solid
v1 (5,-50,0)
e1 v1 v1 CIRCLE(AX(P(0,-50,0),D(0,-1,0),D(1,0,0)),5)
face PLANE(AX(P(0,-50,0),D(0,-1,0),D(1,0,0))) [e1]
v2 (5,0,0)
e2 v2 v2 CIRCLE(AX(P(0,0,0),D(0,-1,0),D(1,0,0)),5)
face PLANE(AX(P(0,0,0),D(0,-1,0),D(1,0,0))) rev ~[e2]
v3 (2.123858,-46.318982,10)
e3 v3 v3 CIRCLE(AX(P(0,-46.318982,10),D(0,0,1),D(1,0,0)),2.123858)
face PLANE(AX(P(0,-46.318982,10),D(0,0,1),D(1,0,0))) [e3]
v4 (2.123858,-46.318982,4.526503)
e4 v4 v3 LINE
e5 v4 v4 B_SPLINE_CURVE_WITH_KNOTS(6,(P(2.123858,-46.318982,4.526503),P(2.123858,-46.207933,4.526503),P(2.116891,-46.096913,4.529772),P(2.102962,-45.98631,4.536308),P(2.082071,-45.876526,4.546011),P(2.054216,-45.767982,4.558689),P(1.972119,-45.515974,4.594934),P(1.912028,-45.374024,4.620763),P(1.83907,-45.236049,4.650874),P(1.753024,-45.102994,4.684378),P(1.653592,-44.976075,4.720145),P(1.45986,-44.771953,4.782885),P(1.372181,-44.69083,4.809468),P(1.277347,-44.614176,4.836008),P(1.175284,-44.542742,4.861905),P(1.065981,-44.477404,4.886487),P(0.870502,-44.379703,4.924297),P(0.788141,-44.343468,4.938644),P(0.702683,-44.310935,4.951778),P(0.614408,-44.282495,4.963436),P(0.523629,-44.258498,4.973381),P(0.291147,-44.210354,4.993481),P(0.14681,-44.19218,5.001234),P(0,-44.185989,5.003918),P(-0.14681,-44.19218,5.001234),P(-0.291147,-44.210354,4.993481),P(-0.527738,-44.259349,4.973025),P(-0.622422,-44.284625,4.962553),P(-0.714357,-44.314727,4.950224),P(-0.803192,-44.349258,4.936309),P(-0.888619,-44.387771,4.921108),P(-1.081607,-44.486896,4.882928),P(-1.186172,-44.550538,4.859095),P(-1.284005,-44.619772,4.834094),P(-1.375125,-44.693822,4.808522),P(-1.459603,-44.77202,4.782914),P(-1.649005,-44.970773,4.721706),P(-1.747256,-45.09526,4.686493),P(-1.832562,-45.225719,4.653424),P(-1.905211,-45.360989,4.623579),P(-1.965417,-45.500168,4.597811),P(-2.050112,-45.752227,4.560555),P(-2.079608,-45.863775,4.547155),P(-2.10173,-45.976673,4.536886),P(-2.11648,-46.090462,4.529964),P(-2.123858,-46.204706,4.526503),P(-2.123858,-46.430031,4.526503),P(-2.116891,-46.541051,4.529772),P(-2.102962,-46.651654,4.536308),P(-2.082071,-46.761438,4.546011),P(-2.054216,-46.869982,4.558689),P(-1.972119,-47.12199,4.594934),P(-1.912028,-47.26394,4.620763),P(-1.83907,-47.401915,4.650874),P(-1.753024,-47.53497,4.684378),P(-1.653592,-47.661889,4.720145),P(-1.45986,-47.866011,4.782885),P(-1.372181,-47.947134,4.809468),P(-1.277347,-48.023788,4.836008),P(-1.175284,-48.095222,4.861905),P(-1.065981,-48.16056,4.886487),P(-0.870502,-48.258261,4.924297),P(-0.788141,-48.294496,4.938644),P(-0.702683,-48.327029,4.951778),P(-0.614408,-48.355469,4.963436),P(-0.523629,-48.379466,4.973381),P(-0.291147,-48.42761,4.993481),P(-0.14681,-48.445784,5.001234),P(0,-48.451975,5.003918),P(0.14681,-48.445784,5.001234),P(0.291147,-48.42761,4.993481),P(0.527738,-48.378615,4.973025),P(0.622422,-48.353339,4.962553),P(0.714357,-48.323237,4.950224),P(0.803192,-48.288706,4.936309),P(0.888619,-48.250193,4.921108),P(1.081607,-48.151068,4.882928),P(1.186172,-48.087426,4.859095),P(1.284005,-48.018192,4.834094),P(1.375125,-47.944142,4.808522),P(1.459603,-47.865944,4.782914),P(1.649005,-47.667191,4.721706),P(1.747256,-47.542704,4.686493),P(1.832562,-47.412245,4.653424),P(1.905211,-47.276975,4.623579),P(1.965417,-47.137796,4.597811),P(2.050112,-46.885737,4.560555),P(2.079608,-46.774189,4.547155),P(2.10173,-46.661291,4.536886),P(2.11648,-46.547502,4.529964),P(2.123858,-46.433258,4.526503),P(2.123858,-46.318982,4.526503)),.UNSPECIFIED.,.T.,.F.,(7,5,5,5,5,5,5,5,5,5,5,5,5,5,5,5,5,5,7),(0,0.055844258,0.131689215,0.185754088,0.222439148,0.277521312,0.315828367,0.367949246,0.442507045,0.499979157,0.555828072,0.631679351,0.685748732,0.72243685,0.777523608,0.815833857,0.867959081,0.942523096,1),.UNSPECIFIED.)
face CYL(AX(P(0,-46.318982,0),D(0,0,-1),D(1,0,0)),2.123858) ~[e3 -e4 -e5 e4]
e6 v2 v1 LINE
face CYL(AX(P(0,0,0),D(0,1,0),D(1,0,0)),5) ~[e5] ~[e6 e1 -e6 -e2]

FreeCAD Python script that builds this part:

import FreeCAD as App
import Part
import Sketcher
from FreeCAD import Vector

doc = App.newDocument("Part")
params = doc.addObject("Spreadsheet::Sheet", "Params")
for row, (alias, value) in enumerate([
    ("sketch1_diameter", "10 mm"),
    ("pad1_length", "50 mm"),
    ("pad2_length", "10 mm"),
], start=1):
    params.set(f"A{row}", alias)
    params.set(f"B{row}", "=" + value)
    params.setAlias(f"B{row}", alias)

body = doc.addObject("PartDesign::Body", "Body")

# Sketch on XZ plane
sketch1 = body.newObject("Sketcher::SketchObject", "Sketch")
sketch1.AttachmentSupport = (doc.getObject("XZ_Plane"), [""])
sketch1.MapMode = "FlatFace"
sketch1.addGeometry(Part.Circle(Vector(0, 0, 0), Vector(0, 0, 1), 5), False)
sketch1.addConstraint(Sketcher.Constraint("Coincident", 0, 3, -1, 1))
sketch1.addConstraint(Sketcher.Constraint("Diameter", 0, 10.0))
sketch1.setExpression("Constraints[1]", "Params.sketch1_diameter")
pad1 = body.newObject("PartDesign::Pad", "Pad")
pad1.Profile = sketch1
pad1.setExpression("Length", "Params.pad1_length")

# Sketch on XY plane
sketch2 = body.newObject("Sketcher::SketchObject", "Sketch001")
sketch2.AttachmentSupport = (doc.getObject("XY_Plane"), [""])
sketch2.MapMode = "FlatFace"
sketch2.addGeometry(Part.Circle(Vector(0, -46.3, 0), Vector(0, 0, 1), 2.1), False)
sketch2.addConstraint(Sketcher.Constraint("PointOnObject", 0, 3, -2))
sketch2.addConstraint(Sketcher.Constraint("Diameter", 0, 4.247716))
sketch2.addConstraint(Sketcher.Constraint("DistanceY", 0, 3, -1, 1, 46.318982))
pad2 = body.newObject("PartDesign::Pad", "Pad001")
pad2.Profile = sketch2
pad2.setExpression("Length", "Params.pad2_length")

doc.recompute()
